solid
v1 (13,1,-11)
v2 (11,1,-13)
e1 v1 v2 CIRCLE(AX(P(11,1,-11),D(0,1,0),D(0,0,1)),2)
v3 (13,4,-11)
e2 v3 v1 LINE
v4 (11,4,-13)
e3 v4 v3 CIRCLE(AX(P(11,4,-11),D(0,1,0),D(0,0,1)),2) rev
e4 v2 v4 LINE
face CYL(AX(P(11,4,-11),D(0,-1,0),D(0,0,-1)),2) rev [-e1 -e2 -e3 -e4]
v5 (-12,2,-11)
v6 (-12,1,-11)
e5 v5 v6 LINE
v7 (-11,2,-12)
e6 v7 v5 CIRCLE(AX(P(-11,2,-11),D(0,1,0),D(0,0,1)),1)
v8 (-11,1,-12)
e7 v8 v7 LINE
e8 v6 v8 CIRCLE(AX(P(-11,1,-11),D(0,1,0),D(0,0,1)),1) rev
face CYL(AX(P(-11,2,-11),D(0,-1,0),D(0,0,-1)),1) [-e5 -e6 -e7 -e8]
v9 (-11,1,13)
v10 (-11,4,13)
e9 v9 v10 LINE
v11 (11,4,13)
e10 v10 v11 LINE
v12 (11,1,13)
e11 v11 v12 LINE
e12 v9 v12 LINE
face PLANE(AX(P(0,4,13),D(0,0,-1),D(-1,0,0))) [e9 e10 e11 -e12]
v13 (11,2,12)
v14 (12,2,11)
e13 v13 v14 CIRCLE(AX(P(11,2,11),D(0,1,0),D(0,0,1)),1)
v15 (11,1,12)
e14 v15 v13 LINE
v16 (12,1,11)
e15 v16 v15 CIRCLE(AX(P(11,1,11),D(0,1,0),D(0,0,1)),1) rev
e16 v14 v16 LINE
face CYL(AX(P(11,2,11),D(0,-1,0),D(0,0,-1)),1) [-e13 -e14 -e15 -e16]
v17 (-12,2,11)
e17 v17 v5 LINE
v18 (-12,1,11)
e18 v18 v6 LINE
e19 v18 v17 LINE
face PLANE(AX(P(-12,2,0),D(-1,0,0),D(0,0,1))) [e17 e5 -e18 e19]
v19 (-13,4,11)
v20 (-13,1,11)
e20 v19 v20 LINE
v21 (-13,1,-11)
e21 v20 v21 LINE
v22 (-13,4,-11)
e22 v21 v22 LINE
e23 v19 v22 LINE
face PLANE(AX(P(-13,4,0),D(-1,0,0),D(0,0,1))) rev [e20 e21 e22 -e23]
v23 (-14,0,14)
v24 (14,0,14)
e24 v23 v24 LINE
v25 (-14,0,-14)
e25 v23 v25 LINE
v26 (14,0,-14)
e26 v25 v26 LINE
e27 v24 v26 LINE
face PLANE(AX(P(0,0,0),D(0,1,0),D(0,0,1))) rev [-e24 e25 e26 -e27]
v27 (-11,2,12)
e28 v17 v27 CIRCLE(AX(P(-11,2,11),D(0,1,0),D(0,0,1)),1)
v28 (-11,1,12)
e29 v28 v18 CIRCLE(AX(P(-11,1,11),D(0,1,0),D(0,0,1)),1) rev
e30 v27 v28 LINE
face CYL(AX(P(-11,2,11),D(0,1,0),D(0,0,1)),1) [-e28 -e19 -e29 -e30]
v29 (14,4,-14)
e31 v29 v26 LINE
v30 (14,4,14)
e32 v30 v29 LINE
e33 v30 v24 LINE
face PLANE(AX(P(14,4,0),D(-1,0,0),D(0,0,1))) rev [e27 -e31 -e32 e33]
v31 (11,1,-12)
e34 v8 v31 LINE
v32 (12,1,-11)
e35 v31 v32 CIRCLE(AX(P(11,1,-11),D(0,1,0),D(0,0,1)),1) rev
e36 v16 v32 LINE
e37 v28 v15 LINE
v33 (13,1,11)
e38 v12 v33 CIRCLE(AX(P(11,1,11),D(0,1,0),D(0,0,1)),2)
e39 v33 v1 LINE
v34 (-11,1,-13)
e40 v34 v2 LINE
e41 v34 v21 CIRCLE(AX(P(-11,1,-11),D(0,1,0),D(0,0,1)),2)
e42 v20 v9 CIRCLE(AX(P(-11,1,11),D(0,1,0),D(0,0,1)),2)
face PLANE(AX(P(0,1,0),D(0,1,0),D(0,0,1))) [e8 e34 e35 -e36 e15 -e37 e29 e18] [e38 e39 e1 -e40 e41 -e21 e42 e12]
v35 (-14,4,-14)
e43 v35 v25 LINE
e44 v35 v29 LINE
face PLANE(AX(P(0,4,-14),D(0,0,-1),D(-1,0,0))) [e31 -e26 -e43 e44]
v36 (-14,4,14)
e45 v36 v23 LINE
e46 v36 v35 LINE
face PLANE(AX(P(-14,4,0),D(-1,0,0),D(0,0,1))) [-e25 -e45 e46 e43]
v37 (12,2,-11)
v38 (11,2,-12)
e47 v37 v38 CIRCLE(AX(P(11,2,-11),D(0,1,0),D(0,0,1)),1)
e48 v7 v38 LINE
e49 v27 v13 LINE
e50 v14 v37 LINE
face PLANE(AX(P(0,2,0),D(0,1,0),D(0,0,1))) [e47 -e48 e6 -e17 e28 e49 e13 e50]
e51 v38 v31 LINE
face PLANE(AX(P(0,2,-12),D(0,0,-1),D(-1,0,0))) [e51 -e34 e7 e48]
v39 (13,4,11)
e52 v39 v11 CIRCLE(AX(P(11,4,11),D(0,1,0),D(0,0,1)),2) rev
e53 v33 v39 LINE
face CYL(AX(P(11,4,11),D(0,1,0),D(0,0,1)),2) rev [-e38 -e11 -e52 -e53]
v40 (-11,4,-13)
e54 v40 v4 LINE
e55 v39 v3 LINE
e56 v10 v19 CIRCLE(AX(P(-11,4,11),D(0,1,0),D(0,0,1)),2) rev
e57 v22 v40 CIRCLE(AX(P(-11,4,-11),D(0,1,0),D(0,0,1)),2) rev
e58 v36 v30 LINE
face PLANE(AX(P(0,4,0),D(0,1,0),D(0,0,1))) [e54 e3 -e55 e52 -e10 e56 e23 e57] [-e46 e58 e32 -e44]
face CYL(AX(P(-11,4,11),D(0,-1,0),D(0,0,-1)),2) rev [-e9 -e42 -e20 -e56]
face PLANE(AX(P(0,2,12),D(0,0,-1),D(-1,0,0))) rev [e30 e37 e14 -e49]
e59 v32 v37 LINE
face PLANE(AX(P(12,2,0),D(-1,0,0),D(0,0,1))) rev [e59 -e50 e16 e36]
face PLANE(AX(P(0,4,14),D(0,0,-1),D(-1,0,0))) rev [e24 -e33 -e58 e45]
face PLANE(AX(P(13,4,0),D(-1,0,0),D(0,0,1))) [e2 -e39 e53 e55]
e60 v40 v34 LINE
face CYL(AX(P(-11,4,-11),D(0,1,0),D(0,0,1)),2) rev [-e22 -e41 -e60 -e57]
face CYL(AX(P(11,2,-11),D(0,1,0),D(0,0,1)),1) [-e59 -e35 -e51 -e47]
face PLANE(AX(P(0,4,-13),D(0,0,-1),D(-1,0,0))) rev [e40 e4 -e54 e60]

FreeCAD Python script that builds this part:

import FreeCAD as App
import Part
import Sketcher
from FreeCAD import Vector
Q = App.Units.Quantity


def edges_at(feature, points):
    """Names of the edges that pass closest to the given points."""
    edges = feature.Shape.Edges
    near = lambda p: min(range(len(edges)), key=lambda i: edges[i].distToShape(Part.Vertex(*p))[0])
    return sorted({f"Edge{near(p) + 1}" for p in points})


def add_polygon(sketch, points):
    """Adds a closed chain of lines whose ends are joined by coincident constraints."""
    first, n = sketch.GeometryCount, len(points)
    for a, b in zip(points, points[1:] + points[:1]):
        sketch.addGeometry(Part.LineSegment(App.Vector(*a, 0), App.Vector(*b, 0)), False)
    for i in range(n):
        sketch.addConstraint(Sketcher.Constraint("Coincident", first + i, 2, first + (i + 1) % n, 1))

doc = App.newDocument("Part")
body = doc.addObject("PartDesign::Body", "Body")

# Sketch on XZ plane
sketch1 = body.newObject("Sketcher::SketchObject", "Sketch")
sketch1.AttachmentSupport = (doc.getObject("XZ_Plane"), [""])
sketch1.MapMode = "FlatFace"
add_polygon(sketch1, [(-13, -13), (-13, 13), (13, 13), (13, -13)])  # lines 0-3
add_polygon(sketch1, [(12, 12), (-12, 12), (-12, -12), (12, -12)])  # lines 4-7
sketch1.addConstraint([
    Sketcher.Constraint("Vertical", 0),
    Sketcher.Constraint("Horizontal", 1),
    Sketcher.Constraint("Vertical", 2),
    Sketcher.Constraint("Horizontal", 3),
    Sketcher.Constraint("Horizontal", 4),
    Sketcher.Constraint("Vertical", 5),
    Sketcher.Constraint("Horizontal", 6),
    Sketcher.Constraint("Vertical", 7),
    Sketcher.Constraint("Symmetric", 0, 2, 2, 2, -1, 1),
    Sketcher.Constraint("Symmetric", 4, 2, 6, 2, -1, 1),
    Sketcher.Constraint("Equal", 3, 0),
    Sketcher.Constraint("Equal", 6, 5),
    Sketcher.Constraint("DistanceX", 1, 1, 1, 2, Q("26 mm")),
    Sketcher.Constraint("DistanceX", 4, 2, 4, 1, Q("24 mm")),
])
pad1 = body.newObject("PartDesign::Pad", "Pad")
pad1.Profile = sketch1
pad1.Length = 1
pad1.Reversed = True

# Sketch on XZ plane
sketch2 = body.newObject("Sketcher::SketchObject", "Sketch001")
sketch2.AttachmentSupport = (doc.getObject("XZ_Plane"), [""])
sketch2.MapMode = "FlatFace"
add_polygon(sketch2, [(-12, -12), (-12, 12), (12, 12), (12, -12)])  # lines 0-3
sketch2.addConstraint([
    Sketcher.Constraint("Vertical", 0),
    Sketcher.Constraint("Horizontal", 1),
    Sketcher.Constraint("Vertical", 2),
    Sketcher.Constraint("Horizontal", 3),
    Sketcher.Constraint("Symmetric", 0, 2, 2, 2, -1, 1),
    Sketcher.Constraint("Equal", 3, 0),
    Sketcher.Constraint("DistanceX", 1, 1, 1, 2, Q("24 mm")),
])
pad2 = body.newObject("PartDesign::Pad", "Pad001")
pad2.Profile = sketch2
pad2.Length = 2
pad2.Reversed = True

# Sketch on XZ plane
sketch3 = body.newObject("Sketcher::SketchObject", "Sketch002")
sketch3.AttachmentSupport = (doc.getObject("XZ_Plane"), [""])
sketch3.MapMode = "FlatFace"
add_polygon(sketch3, [(-14, -14), (-14, 14), (14, 14), (14, -14)])  # lines 0-3
add_polygon(sketch3, [(13, 13), (-13, 13), (-13, -13), (13, -13)])  # lines 4-7
sketch3.addConstraint([
    Sketcher.Constraint("Vertical", 0),
    Sketcher.Constraint("Horizontal", 1),
    Sketcher.Constraint("Vertical", 2),
    Sketcher.Constraint("Horizontal", 3),
    Sketcher.Constraint("Horizontal", 4),
    Sketcher.Constraint("Vertical", 5),
    Sketcher.Constraint("Horizontal", 6),
    Sketcher.Constraint("Vertical", 7),
    Sketcher.Constraint("Symmetric", 0, 2, 2, 2, -1, 1),
    Sketcher.Constraint("Symmetric", 4, 2, 6, 2, -1, 1),
    Sketcher.Constraint("Equal", 3, 0),
    Sketcher.Constraint("Equal", 6, 5),
    Sketcher.Constraint("DistanceX", 1, 1, 1, 2, Q("28 mm")),
    Sketcher.Constraint("DistanceX", 4, 2, 4, 1, Q("26 mm")),
])
pad3 = body.newObject("PartDesign::Pad", "Pad002")
pad3.Profile = sketch3
pad3.Length = 4
pad3.Reversed = True
doc.recompute()

fillet = body.newObject("PartDesign::Fillet", "Fillet")
fillet.Base = (pad3, edges_at(pad3, [
    (-12, 1.5, 12),
    (12, 1.5, 12),
    (12, 1.5, -12),
    (-12, 1.5, -12),
]))
fillet.Radius = 1
doc.recompute()

fillet2 = body.newObject("PartDesign::Fillet", "Fillet001")
fillet2.Base = (fillet, edges_at(fillet, [
    (13, 2.5, -13),
    (13, 2.5, 13),
    (-13, 2.5, 13),
    (-13, 2.5, -13),
]))
fillet2.Radius = 2

doc.recompute()
